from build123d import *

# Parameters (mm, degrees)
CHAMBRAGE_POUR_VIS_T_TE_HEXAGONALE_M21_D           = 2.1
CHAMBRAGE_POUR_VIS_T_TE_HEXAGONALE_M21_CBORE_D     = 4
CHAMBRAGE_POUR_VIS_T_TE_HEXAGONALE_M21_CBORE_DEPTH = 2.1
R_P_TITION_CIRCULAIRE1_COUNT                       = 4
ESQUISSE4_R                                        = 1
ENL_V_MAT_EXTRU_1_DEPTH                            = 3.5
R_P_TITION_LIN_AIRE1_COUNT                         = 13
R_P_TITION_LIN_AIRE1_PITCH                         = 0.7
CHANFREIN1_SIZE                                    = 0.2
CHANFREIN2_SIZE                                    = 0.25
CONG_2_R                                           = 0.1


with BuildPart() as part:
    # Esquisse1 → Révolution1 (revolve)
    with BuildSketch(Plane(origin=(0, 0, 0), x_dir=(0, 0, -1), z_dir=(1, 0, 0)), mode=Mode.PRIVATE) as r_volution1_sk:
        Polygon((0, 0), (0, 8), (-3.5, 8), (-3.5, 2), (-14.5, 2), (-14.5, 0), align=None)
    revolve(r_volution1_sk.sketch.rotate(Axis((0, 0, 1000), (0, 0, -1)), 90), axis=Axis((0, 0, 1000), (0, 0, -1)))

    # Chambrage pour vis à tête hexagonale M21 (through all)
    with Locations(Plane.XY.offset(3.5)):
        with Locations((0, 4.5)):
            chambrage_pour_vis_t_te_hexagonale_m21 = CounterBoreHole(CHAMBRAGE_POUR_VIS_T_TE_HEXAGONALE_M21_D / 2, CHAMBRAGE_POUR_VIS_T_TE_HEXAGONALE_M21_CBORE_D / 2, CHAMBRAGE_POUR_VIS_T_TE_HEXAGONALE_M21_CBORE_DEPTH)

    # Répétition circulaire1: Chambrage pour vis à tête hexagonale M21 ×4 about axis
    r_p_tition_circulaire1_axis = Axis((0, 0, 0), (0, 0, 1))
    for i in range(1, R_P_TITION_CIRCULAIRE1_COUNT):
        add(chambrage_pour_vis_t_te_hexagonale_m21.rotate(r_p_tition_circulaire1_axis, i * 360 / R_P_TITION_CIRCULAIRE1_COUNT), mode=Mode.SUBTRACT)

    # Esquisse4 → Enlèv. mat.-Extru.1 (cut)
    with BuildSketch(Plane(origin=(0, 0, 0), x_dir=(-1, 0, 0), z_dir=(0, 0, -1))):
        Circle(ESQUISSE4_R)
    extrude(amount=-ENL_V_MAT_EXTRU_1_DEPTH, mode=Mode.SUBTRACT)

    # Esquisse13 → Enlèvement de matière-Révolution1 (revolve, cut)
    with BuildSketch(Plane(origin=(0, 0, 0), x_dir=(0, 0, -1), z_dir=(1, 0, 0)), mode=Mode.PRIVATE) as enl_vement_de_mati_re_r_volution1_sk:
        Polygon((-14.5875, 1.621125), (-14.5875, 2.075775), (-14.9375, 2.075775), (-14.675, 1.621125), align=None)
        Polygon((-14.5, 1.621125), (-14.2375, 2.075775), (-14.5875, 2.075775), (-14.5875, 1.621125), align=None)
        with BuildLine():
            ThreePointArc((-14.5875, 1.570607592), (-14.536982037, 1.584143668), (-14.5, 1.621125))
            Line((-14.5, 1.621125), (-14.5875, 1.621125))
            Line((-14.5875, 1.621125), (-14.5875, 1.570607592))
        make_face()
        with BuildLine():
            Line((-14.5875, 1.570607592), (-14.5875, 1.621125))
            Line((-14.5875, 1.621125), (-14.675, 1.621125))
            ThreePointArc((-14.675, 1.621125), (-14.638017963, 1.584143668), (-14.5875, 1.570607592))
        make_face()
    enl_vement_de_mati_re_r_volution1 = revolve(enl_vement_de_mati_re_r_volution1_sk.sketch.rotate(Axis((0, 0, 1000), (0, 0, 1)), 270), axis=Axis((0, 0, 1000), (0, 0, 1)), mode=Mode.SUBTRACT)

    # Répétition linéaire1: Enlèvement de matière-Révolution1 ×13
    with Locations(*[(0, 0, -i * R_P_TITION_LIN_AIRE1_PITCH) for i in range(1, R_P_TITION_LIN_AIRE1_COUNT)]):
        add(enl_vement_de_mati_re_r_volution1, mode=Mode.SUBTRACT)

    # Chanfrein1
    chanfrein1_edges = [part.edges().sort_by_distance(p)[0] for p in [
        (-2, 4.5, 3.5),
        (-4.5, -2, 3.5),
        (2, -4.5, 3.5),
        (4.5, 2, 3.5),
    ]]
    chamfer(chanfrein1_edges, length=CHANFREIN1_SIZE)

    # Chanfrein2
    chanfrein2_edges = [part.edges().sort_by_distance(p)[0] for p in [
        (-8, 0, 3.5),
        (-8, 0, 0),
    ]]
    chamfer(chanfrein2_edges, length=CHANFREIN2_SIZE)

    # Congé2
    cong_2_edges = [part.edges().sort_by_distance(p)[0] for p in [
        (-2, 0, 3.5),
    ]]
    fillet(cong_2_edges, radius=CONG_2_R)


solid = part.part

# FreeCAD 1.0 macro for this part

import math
import FreeCAD as App
import Part
import Sketcher

V = App.Vector


def edges_at(feature, points):
    """Names of the edges that pass closest to the given points."""
    edges = feature.Shape.Edges
    near = lambda p: min(range(len(edges)), key=lambda i: edges[i].distToShape(Part.Vertex(*p))[0])
    return sorted({f"Edge{near(p) + 1}" for p in points})


def add_polygon(sketch, points):
    """Adds a closed chain of lines whose ends are joined by coincident constraints."""
    first, n = sketch.GeometryCount, len(points)
    for a, b in zip(points, points[1:] + points[:1]):
        sketch.addGeometry(Part.LineSegment(App.Vector(*a, 0), App.Vector(*b, 0)), False)
    for i in range(n):
        sketch.addConstraint(Sketcher.Constraint("Coincident", first + i, 2, first + (i + 1) % n, 1))

doc = App.newDocument("Part")
body = doc.addObject("PartDesign::Body", "Body")

sketch1 = body.newObject("Sketcher::SketchObject", "Sketch")
sketch1.AttachmentSupport = (doc.getObject("YZ_Plane"), [""])
sketch1.MapMode = "FlatFace"
add_polygon(sketch1, [(0, 0), (8, 0), (8, 3.5), (2, 3.5), (2, 14.5), (0, 14.5)])
sketch1.addConstraint(Sketcher.Constraint("Horizontal", 0))
sketch1.addConstraint(Sketcher.Constraint("Vertical", 1))
sketch1.addConstraint(Sketcher.Constraint("Horizontal", 2))
sketch1.addConstraint(Sketcher.Constraint("Vertical", 3))
sketch1.addConstraint(Sketcher.Constraint("Horizontal", 4))
sketch1.addConstraint(Sketcher.Constraint("Vertical", 5))
sketch1.addConstraint(Sketcher.Constraint("Coincident", 5, 2, -1, 1))
sketch1.addConstraint(Sketcher.Constraint("DistanceX", 0, 1, 0, 2, 8.0))
sketch1.addConstraint(Sketcher.Constraint("DistanceX", 2, 2, 2, 1, 6.0))
sketch1.addConstraint(Sketcher.Constraint("DistanceY", 3, 1, 3, 2, 11.0))
sketch1.addConstraint(Sketcher.Constraint("DistanceY", 1, 1, 1, 2, 3.5))
revolution = body.newObject("PartDesign::Revolution", "Revolution")
revolution.Profile = sketch1
revolution.ReferenceAxis = (sketch1, ["V_Axis"])
revolution.Angle = 360

sketch2 = body.newObject("Sketcher::SketchObject", "Sketch001")
sketch2.AttachmentSupport = (doc.getObject("XY_Plane"), [""])
sketch2.MapMode = "FlatFace"
sketch2.AttachmentOffset = App.Placement(V(0, 0, 3.5), App.Rotation())
sketch2.addGeometry(Part.Circle(V(0, 4.5, 0), V(0, 0, 1), 1.1), False)
sketch2.addConstraint(Sketcher.Constraint("PointOnObject", 0, 3, -2))
sketch2.addConstraint(Sketcher.Constraint("Diameter", 0, 2.1))
sketch2.addConstraint(Sketcher.Constraint("DistanceY", -1, 1, 0, 3, 4.5))
doc.recompute()
hole = body.newObject("PartDesign::Hole", "Hole")
hole.Profile = sketch2
hole.ThreadType = "None"
hole.Diameter = 2.1
hole.DepthType = "ThroughAll"
hole.HoleCutType = "Counterbore"
hole.HoleCutDiameter = 4
hole.HoleCutDepth = 2.1
doc.recompute()

polarpattern = body.newObject("PartDesign::PolarPattern", "PolarPattern")
polarpattern.Originals = [hole]
polarpattern.Axis = (doc.getObject("Z_Axis"), [""])
polarpattern.Angle = 360
polarpattern.Occurrences = 4
body.Tip = polarpattern

sketch3 = body.newObject("Sketcher::SketchObject", "Sketch002")
sketch3.AttachmentSupport = (doc.getObject("XY_Plane"), [""])
sketch3.MapMode = "FlatFace"
sketch3.addGeometry(Part.Circle(V(0, 0, 0), V(0, 0, 1), 1), False)
sketch3.addConstraint(Sketcher.Constraint("Coincident", 0, 3, -1, 1))
sketch3.addConstraint(Sketcher.Constraint("Diameter", 0, 2.0))
pocket1 = body.newObject("PartDesign::Pocket", "Pocket")
pocket1.Profile = sketch3
pocket1.Length = 3.5
pocket1.Reversed = True

sketch4 = body.newObject("Sketcher::SketchObject", "Sketch003")
sketch4.AttachmentSupport = (doc.getObject("YZ_Plane"), [""])
sketch4.MapMode = "FlatFace"
sketch4.addGeometry(Part.LineSegment(V(1.62, 14.5, 0), V(2.08, 14.24, 0)), False)
sketch4.addGeometry(Part.LineSegment(V(2.08, 14.24, 0), V(2.08, 14.94, 0)), False)
sketch4.addGeometry(Part.LineSegment(V(2.08, 14.94, 0), V(1.62, 14.68, 0)), False)
sketch4.addGeometry(Part.ArcOfCircle(Part.Circle(V(1.67, 14.59, 0), V(0, 0, 1), 0.1), math.radians(120), math.radians(180)), False)
sketch4.addGeometry(Part.ArcOfCircle(Part.Circle(V(1.67, 14.59, 0), V(0, 0, 1), 0.1), math.radians(-180), math.radians(-120)), False)
sketch4.addConstraint(Sketcher.Constraint("Coincident", 0, 2, 1, 1))
sketch4.addConstraint(Sketcher.Constraint("Coincident", 1, 2, 2, 1))
sketch4.addConstraint(Sketcher.Constraint("Tangent", 2, 2, 3, 1))
sketch4.addConstraint(Sketcher.Constraint("Tangent", 3, 2, 4, 1))
sketch4.addConstraint(Sketcher.Constraint("Tangent", 4, 2, 0, 1))
sketch4.addConstraint(Sketcher.Constraint("Vertical", 1))
sketch4.addConstraint(Sketcher.Constraint("Equal", 3, 4))
sketch4.addConstraint(Sketcher.Constraint("Horizontal", 4, 3, 3, 2))
sketch4.addConstraint(Sketcher.Constraint("Vertical", 2, 2, 4, 2))
sketch4.addConstraint(Sketcher.Constraint("DistanceY", 1, 1, 1, 2, 0.7))
sketch4.addConstraint(Sketcher.Constraint("DistanceY", -1, 1, 4, 2, 14.5))
sketch4.addConstraint(Sketcher.Constraint("DistanceY", -1, 1, 2, 2, 14.675))
sketch4.addConstraint(Sketcher.Constraint("Radius", 3, 0.101037))
sketch4.addConstraint(Sketcher.Constraint("DistanceX", -1, 1, 3, 3, 1.671645))
groove = body.newObject("PartDesign::Groove", "Groove")
groove.Profile = sketch4
groove.ReferenceAxis = (sketch4, ["V_Axis"])
groove.Angle = 360
doc.recompute()

linearpattern = body.newObject("PartDesign::LinearPattern", "LinearPattern")
linearpattern.Originals = [groove]
linearpattern.Direction = (doc.getObject("Z_Axis"), [""])
linearpattern.Mode = "offset"
linearpattern.Offset = 0.7
linearpattern.Occurrences = 13
linearpattern.Reversed = True
body.Tip = linearpattern
doc.recompute()

chamfer = body.newObject("PartDesign::Chamfer", "Chamfer")
chamfer.Base = (linearpattern, edges_at(linearpattern, [
    (-2, 4.5, 3.5),
    (-4.5, -2, 3.5),
    (2, -4.5, 3.5),
    (4.5, 2, 3.5),
]))
chamfer.Size = 0.2
doc.recompute()

chamfer2 = body.newObject("PartDesign::Chamfer", "Chamfer001")
chamfer2.Base = (chamfer, edges_at(chamfer, [(-8, 0, 3.5), (-8, 0, 0)]))
chamfer2.Size = 0.25
doc.recompute()

fillet = body.newObject("PartDesign::Fillet", "Fillet")
fillet.Base = (chamfer2, edges_at(chamfer2, [(-2, 0, 3.5)]))
fillet.Radius = 0.1

doc.recompute()
